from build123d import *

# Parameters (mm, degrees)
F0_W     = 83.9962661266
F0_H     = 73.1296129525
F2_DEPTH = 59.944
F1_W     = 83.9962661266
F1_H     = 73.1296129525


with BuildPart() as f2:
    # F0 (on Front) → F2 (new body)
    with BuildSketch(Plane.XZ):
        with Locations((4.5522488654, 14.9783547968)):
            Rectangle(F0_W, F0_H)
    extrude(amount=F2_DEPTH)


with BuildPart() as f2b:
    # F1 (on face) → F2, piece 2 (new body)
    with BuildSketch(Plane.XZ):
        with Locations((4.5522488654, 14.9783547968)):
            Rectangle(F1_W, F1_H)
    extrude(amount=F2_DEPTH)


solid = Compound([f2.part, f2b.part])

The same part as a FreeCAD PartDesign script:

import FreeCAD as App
import Part
import Sketcher
Q = App.Units.Quantity


def add_polygon(sketch, points):
    """Adds a closed chain of lines whose ends are joined by coincident constraints."""
    first, n = sketch.GeometryCount, len(points)
    for a, b in zip(points, points[1:] + points[:1]):
        sketch.addGeometry(Part.LineSegment(App.Vector(*a, 0), App.Vector(*b, 0)), False)
    for i in range(n):
        sketch.addConstraint(Sketcher.Constraint("Coincident", first + i, 2, first + (i + 1) % n, 1))

doc = App.newDocument("Part")
params = doc.addObject("Spreadsheet::Sheet", "Params")
for row, (alias, value) in enumerate([
    ("pad1_length", "2.36 in"),
    ("pad2_length", "2.36 in"),
], start=1):
    params.set(f"A{row}", alias)
    params.set(f"B{row}", "=" + value)
    params.setAlias(f"B{row}", alias)

body = doc.addObject("PartDesign::Body", "Body")

# Sketch on XZ plane
sketch1 = doc.addObject("Sketcher::SketchObject", "Sketch")
body.addObject(sketch1)
sketch1.AttachmentSupport = (doc.XZ_Plane, [""])
sketch1.MapMode = "FlatFace"
add_polygon(sketch1, [(-37.445884, 51.543161), (-37.445884, -21.586452), (46.550382, -21.586452), (46.550382, 51.543161)])  # lines 0-3
sketch1.addConstraint(Sketcher.Constraint("Vertical", 0))
sketch1.addConstraint(Sketcher.Constraint("Horizontal", 1))
sketch1.addConstraint(Sketcher.Constraint("Vertical", 2))
sketch1.addConstraint(Sketcher.Constraint("Horizontal", 3))
sketch1.addConstraint(Sketcher.Constraint("DistanceX", 1, 1, 1, 2, Q("83.996266 mm")))
sketch1.addConstraint(Sketcher.Constraint("DistanceY", 0, 2, 0, 1, Q("73.129613 mm")))
sketch1.addConstraint(Sketcher.Constraint("DistanceY", 0, 2, -1, 1, Q("21.586452 mm")))
sketch1.addConstraint(Sketcher.Constraint("DistanceX", -1, 1, 1, 2, Q("46.550382 mm")))
pad1 = doc.addObject("PartDesign::Pad", "Pad")
body.addObject(pad1)
pad1.Profile = sketch1
pad1.setExpression("Length", "Params.pad1_length")
body2 = doc.addObject("PartDesign::Body", "Body001")

# Sketch on XZ plane
sketch2 = doc.addObject("Sketcher::SketchObject", "Sketch001")
body2.addObject(sketch2)
sketch2.AttachmentSupport = (doc.getObject("XZ_Plane001"), [""])
sketch2.MapMode = "FlatFace"
add_polygon(sketch2, [(-37.445884, 51.543161), (-37.445884, -21.586452), (46.550382, -21.586452), (46.550382, 51.543161)])  # lines 0-3
sketch2.addConstraint(Sketcher.Constraint("Vertical", 0))
sketch2.addConstraint(Sketcher.Constraint("Horizontal", 1))
sketch2.addConstraint(Sketcher.Constraint("Vertical", 2))
sketch2.addConstraint(Sketcher.Constraint("Horizontal", 3))
sketch2.addConstraint(Sketcher.Constraint("DistanceX", 1, 1, 1, 2, Q("83.996266 mm")))
sketch2.addConstraint(Sketcher.Constraint("DistanceY", 0, 2, 0, 1, Q("73.129613 mm")))
sketch2.addConstraint(Sketcher.Constraint("DistanceY", 0, 2, -1, 1, Q("21.586452 mm")))
sketch2.addConstraint(Sketcher.Constraint("DistanceX", -1, 1, 1, 2, Q("46.550382 mm")))
pad2 = doc.addObject("PartDesign::Pad", "Pad001")
body2.addObject(pad2)
pad2.Profile = sketch2
pad2.setExpression("Length", "Params.pad2_length")

doc.recompute()
